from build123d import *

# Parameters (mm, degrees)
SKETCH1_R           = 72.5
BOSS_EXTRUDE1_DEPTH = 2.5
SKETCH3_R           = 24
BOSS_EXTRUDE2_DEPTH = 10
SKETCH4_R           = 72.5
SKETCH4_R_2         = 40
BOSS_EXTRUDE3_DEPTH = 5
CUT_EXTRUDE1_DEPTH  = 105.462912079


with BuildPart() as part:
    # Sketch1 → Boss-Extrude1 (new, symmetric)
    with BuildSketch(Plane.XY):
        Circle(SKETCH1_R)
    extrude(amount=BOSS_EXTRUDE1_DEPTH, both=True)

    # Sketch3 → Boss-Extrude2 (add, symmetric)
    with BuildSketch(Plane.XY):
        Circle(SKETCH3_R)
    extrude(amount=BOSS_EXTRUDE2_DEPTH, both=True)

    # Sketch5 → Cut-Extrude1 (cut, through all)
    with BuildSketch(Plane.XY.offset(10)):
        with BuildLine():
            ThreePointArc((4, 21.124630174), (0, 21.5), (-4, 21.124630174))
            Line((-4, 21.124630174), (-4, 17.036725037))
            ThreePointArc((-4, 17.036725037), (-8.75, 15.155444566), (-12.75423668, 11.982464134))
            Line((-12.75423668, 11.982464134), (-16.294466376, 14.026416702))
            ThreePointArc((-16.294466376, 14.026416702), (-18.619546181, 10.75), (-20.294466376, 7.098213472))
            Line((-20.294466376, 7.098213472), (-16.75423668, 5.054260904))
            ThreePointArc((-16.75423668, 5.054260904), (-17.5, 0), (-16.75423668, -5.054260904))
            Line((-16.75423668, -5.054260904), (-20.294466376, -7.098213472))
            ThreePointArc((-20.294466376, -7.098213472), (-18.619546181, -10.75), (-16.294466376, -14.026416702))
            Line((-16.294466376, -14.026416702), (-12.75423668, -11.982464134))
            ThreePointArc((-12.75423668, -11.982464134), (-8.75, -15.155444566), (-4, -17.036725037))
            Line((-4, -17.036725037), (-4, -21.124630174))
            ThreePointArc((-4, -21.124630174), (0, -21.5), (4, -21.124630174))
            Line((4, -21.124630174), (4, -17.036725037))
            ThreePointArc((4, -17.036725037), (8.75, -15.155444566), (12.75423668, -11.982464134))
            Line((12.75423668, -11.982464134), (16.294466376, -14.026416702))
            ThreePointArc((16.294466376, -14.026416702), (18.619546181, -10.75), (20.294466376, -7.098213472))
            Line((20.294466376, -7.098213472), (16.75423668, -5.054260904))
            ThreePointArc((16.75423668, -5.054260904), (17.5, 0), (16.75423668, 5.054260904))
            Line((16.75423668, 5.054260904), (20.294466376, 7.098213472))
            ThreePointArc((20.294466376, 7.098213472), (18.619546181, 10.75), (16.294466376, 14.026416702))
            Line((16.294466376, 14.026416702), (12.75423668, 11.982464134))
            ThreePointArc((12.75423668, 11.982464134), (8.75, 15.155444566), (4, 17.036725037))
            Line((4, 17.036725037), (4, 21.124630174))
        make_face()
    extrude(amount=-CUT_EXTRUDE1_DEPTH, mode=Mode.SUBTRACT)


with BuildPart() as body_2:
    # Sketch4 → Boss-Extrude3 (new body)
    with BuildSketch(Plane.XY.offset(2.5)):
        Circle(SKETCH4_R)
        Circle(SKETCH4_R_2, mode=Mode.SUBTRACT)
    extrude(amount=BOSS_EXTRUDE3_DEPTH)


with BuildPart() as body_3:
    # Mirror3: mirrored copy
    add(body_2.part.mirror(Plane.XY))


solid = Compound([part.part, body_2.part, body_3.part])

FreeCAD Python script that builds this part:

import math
import FreeCAD as App
import Part
import Sketcher

V = App.Vector
Q = App.Units.Quantity

doc = App.newDocument("Part")
body = doc.addObject("PartDesign::Body", "Body")

sketch1 = body.newObject("Sketcher::SketchObject", "Sketch")
sketch1.AttachmentSupport = (doc.getObject("XY_Plane"), [""])
sketch1.MapMode = "FlatFace"
sketch1.addGeometry(Part.Circle(V(0, 0, 0), V(0, 0, 1), 72), False)
sketch1.addConstraint([
    Sketcher.Constraint("Coincident", 0, 3, -1, 1),
    Sketcher.Constraint("Diameter", 0, Q("145 mm")),
])
pad1 = body.newObject("PartDesign::Pad", "Pad")
pad1.Profile = sketch1
pad1.Length = 5
pad1.Midplane = True

sketch2 = body.newObject("Sketcher::SketchObject", "Sketch001")
sketch2.AttachmentSupport = (doc.getObject("XY_Plane"), [""])
sketch2.MapMode = "FlatFace"
sketch2.addGeometry(Part.Circle(V(0, 0, 0), V(0, 0, 1), 24), False)
sketch2.addConstraint([
    Sketcher.Constraint("Coincident", 0, 3, -1, 1),
    Sketcher.Constraint("Diameter", 0, Q("48 mm")),
])
pad2 = body.newObject("PartDesign::Pad", "Pad001")
pad2.Profile = sketch2
pad2.Length = 20
pad2.Midplane = True

sketch3 = body.newObject("Sketcher::SketchObject", "Sketch002")
sketch3.AttachmentSupport = (doc.getObject("XY_Plane"), [""])
sketch3.MapMode = "FlatFace"
sketch3.AttachmentOffset = App.Placement(V(0, 0, 10), App.Rotation())
sketch3.addGeometry([
    Part.ArcOfCircle(Part.Circle(V(0, 0, 0), V(0, 0, 1), 21.5), math.radians(79), math.radians(101)),
    Part.LineSegment(V(-4, 21.1, 0), V(-4, 17, 0)),
    Part.ArcOfCircle(Part.Circle(V(0, 0, 0), V(0, 0, 1), 17.5), math.radians(103), math.radians(137)),
    Part.LineSegment(V(-12.8, 12, 0), V(-16.3, 14, 0)),
    Part.ArcOfCircle(Part.Circle(V(0, 0, 0), V(0, 0, 1), 21.5), math.radians(139), math.radians(161)),
    Part.LineSegment(V(-20.3, 7.1, 0), V(-16.8, 5.1, 0)),
    Part.ArcOfCircle(Part.Circle(V(0, 0, 0), V(0, 0, 1), 17.5), math.radians(163), math.radians(197)),
    Part.LineSegment(V(-16.8, -5.1, 0), V(-20.3, -7.1, 0)),
    Part.ArcOfCircle(Part.Circle(V(0, 0, 0), V(0, 0, 1), 21.5), math.radians(-161), math.radians(-139)),
    Part.LineSegment(V(-16.3, -14, 0), V(-12.8, -12, 0)),
    Part.ArcOfCircle(Part.Circle(V(0, 0, 0), V(0, 0, 1), 17.5), math.radians(-137), math.radians(-103)),
    Part.LineSegment(V(-4, -17, 0), V(-4, -21.1, 0)),
    Part.ArcOfCircle(Part.Circle(V(0, 0, 0), V(0, 0, 1), 21.5), math.radians(-101), math.radians(-79)),
    Part.LineSegment(V(4, -21.1, 0), V(4, -17, 0)),
    Part.ArcOfCircle(Part.Circle(V(0, 0, 0), V(0, 0, 1), 17.5), math.radians(-77), math.radians(-43)),
    Part.LineSegment(V(12.8, -12, 0), V(16.3, -14, 0)),
    Part.ArcOfCircle(Part.Circle(V(0, 0, 0), V(0, 0, 1), 21.5), math.radians(-41), math.radians(-19)),
    Part.LineSegment(V(20.3, -7.1, 0), V(16.8, -5.1, 0)),
    Part.ArcOfCircle(Part.Circle(V(0, 0, 0), V(0, 0, 1), 17.5), math.radians(-17), math.radians(17)),
    Part.LineSegment(V(16.8, 5.1, 0), V(20.3, 7.1, 0)),
    Part.ArcOfCircle(Part.Circle(V(0, 0, 0), V(0, 0, 1), 21.5), math.radians(19), math.radians(41)),
    Part.LineSegment(V(16.3, 14, 0), V(12.8, 12, 0)),
    Part.ArcOfCircle(Part.Circle(V(0, 0, 0), V(0, 0, 1), 17.5), math.radians(43), math.radians(77)),
    Part.LineSegment(V(4, 17, 0), V(4, 21.1, 0)),
], False)
sketch3.addConstraint([
    Sketcher.Constraint("Coincident", 0, 2, 1, 1),
    Sketcher.Constraint("Coincident", 1, 2, 2, 1),
    Sketcher.Constraint("Coincident", 2, 2, 3, 1),
    Sketcher.Constraint("Coincident", 3, 2, 4, 1),
    Sketcher.Constraint("Coincident", 4, 2, 5, 1),
    Sketcher.Constraint("Coincident", 5, 2, 6, 1),
    Sketcher.Constraint("Coincident", 6, 2, 7, 1),
    Sketcher.Constraint("Coincident", 7, 2, 8, 1),
    Sketcher.Constraint("Coincident", 8, 2, 9, 1),
    Sketcher.Constraint("Coincident", 9, 2, 10, 1),
    Sketcher.Constraint("Coincident", 10, 2, 11, 1),
    Sketcher.Constraint("Coincident", 11, 2, 12, 1),
    Sketcher.Constraint("Coincident", 12, 2, 13, 1),
    Sketcher.Constraint("Coincident", 13, 2, 14, 1),
    Sketcher.Constraint("Coincident", 14, 2, 15, 1),
    Sketcher.Constraint("Coincident", 15, 2, 16, 1),
    Sketcher.Constraint("Coincident", 16, 2, 17, 1),
    Sketcher.Constraint("Coincident", 17, 2, 18, 1),
    Sketcher.Constraint("Coincident", 18, 2, 19, 1),
    Sketcher.Constraint("Coincident", 19, 2, 20, 1),
    Sketcher.Constraint("Coincident", 20, 2, 21, 1),
    Sketcher.Constraint("Coincident", 21, 2, 22, 1),
    Sketcher.Constraint("Coincident", 22, 2, 23, 1),
    Sketcher.Constraint("Coincident", 23, 2, 0, 1),
    Sketcher.Constraint("Vertical", 1),
    Sketcher.Constraint("Vertical", 11),
    Sketcher.Constraint("Vertical", 13),
    Sketcher.Constraint("Vertical", 23),
    Sketcher.Constraint("Coincident", 0, 3, -1, 1),
    Sketcher.Constraint("Coincident", 2, 3, -1, 1),
    Sketcher.Constraint("Coincident", 4, 3, -1, 1),
    Sketcher.Constraint("Coincident", 6, 3, -1, 1),
    Sketcher.Constraint("Coincident", 8, 3, -1, 1),
    Sketcher.Constraint("Coincident", 10, 3, -1, 1),
    Sketcher.Constraint("Coincident", 12, 3, -1, 1),
    Sketcher.Constraint("Coincident", 14, 3, -1, 1),
    Sketcher.Constraint("Coincident", 16, 3, -1, 1),
    Sketcher.Constraint("Coincident", 18, 3, -1, 1),
    Sketcher.Constraint("Coincident", 20, 3, -1, 1),
    Sketcher.Constraint("Coincident", 22, 3, -1, 1),
    Sketcher.Constraint("Equal", 0, 4),
    Sketcher.Constraint("Equal", 2, 6),
    Sketcher.Constraint("Equal", 4, 8),
    Sketcher.Constraint("Equal", 6, 10),
    Sketcher.Constraint("Equal", 8, 12),
    Sketcher.Constraint("Equal", 10, 14),
    Sketcher.Constraint("Equal", 12, 16),
    Sketcher.Constraint("Equal", 14, 18),
    Sketcher.Constraint("Equal", 16, 20),
    Sketcher.Constraint("Equal", 18, 22),
    Sketcher.Constraint("Parallel", 3, 5),
    Sketcher.Constraint("Parallel", 7, 9),
    Sketcher.Constraint("Parallel", 5, 15),
    Sketcher.Constraint("Parallel", 15, 17),
    Sketcher.Constraint("Parallel", 9, 19),
    Sketcher.Constraint("Parallel", 19, 21),
    Sketcher.Constraint("Horizontal", 11, 2, 12, 2),
    Sketcher.Constraint("Horizontal", 9, 2, 14, 2),
    Sketcher.Constraint("Horizontal", 8, 2, 15, 2),
    Sketcher.Constraint("Horizontal", 7, 2, 16, 2),
    Sketcher.Constraint("Horizontal", 5, 2, 18, 2),
    Sketcher.Constraint("Horizontal", 3, 2, 20, 2),
    Sketcher.Constraint("Horizontal", 1, 2, 22, 2),
    Sketcher.Constraint("Vertical", 5, 2, 6, 2),
    Sketcher.Constraint("Vertical", 3, 2, 8, 2),
    Sketcher.Constraint("Vertical", 1, 2, 10, 2),
    Sketcher.Constraint("Equal", 3, 5),
    Sketcher.Constraint("Radius", 0, Q("21.5 mm")),
    Sketcher.Constraint("Radius", 2, Q("17.5 mm")),
    Sketcher.Constraint("Angle", 3, Q("150 deg")),
    Sketcher.Constraint("DistanceX", 0, 2, -1, 1, Q("4 mm")),
    Sketcher.Constraint("DistanceX", 4, 2, 3, 2, Q("4 mm")),
])
pocket1 = body.newObject("PartDesign::Pocket", "Pocket")
pocket1.Profile = sketch3
pocket1.Type = "ThroughAll"
body2 = doc.addObject("PartDesign::Body", "Body001")

sketch4 = body2.newObject("Sketcher::SketchObject", "Sketch003")
sketch4.AttachmentSupport = (doc.getObject("XY_Plane001"), [""])
sketch4.MapMode = "FlatFace"
sketch4.AttachmentOffset = App.Placement(V(0, 0, 2.5), App.Rotation())
sketch4.addGeometry([
    Part.Circle(V(0, 0, 0), V(0, 0, 1), 72),
    Part.Circle(V(0, 0, 0), V(0, 0, 1), 40),
], False)
sketch4.addConstraint([
    Sketcher.Constraint("Coincident", 0, 3, -1, 1),
    Sketcher.Constraint("Coincident", 1, 3, -1, 1),
    Sketcher.Constraint("Diameter", 0, Q("145 mm")),
    Sketcher.Constraint("Diameter", 1, Q("80 mm")),
])
pad3 = body2.newObject("PartDesign::Pad", "Pad002")
pad3.Profile = sketch4
pad3.Length = 5
body3 = doc.addObject("PartDesign::Body", "Body002")
doc.recompute()

mirroring = doc.addObject("Part::Mirroring", "Mirroring")
mirroring.Source = body2
mirroring.Base = V(0, 0, 0)
mirroring.Normal = V(0, 0, 1)
body3.BaseFeature = mirroring
doc.recompute()
mirroring.Visibility = False

doc.recompute()
